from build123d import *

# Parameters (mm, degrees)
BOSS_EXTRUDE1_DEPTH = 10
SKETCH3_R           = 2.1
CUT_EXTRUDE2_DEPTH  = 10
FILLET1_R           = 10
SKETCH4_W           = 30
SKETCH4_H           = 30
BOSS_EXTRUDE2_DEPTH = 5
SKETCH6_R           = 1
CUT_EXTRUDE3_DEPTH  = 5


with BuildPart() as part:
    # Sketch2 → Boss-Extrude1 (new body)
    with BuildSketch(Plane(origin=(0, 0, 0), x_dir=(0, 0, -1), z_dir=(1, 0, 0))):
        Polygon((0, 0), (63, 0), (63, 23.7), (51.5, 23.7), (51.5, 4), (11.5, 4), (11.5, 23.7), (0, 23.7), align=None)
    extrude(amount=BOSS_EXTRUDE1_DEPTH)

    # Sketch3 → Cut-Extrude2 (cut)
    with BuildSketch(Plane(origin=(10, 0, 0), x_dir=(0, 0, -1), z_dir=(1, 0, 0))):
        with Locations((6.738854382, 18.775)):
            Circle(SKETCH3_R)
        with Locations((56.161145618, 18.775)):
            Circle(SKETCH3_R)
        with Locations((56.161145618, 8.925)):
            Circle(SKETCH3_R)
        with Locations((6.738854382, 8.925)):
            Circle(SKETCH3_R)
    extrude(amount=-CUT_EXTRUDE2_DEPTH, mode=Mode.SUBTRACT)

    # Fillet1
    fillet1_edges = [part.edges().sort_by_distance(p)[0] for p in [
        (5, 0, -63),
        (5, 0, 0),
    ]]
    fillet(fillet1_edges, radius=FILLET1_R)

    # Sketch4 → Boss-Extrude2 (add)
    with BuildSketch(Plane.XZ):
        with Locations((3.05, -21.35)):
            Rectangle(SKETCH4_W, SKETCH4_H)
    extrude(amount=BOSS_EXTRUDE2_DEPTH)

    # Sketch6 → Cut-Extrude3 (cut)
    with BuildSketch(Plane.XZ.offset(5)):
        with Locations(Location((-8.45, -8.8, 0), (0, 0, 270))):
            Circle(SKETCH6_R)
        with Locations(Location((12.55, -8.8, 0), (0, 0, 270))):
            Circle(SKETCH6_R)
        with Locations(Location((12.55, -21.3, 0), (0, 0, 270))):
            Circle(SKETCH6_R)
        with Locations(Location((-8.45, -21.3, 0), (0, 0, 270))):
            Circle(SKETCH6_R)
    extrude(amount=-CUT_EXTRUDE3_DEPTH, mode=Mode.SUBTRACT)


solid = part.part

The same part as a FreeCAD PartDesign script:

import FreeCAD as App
import Part
import Sketcher


def edges_at(feature, points):
    """Names of the edges that pass closest to the given points."""
    edges = feature.Shape.Edges
    near = lambda p: min(range(len(edges)), key=lambda i: edges[i].distToShape(Part.Vertex(*p))[0])
    return sorted({f"Edge{near(p) + 1}" for p in points})


def add_polygon(sketch, points):
    """Adds a closed chain of lines whose ends are joined by coincident constraints."""
    first, n = sketch.GeometryCount, len(points)
    for a, b in zip(points, points[1:] + points[:1]):
        sketch.addGeometry(Part.LineSegment(App.Vector(*a, 0), App.Vector(*b, 0)), False)
    for i in range(n):
        sketch.addConstraint(Sketcher.Constraint("Coincident", first + i, 2, first + (i + 1) % n, 1))

doc = App.newDocument("Part")
params = doc.addObject("Spreadsheet::Sheet", "Params")
for row, (alias, value) in enumerate([
    ("sketch1_height", "63 mm"),
    ("sketch1_height2", "40 mm"),
    ("sketch1_width", "23.7 mm"),
    ("sketch1_width2", "19.7 mm"),
    ("pad1_length", "10 mm"),
    ("sketch2_diameter", "4.2 mm"),
    ("pocket1_length", "10 mm"),
    ("fillet_radius", "10 mm"),
    ("sketch3_width", "30 mm"),
    ("pad2_length", "5 mm"),
    ("sketch4_diameter", "2 mm"),
    ("pocket2_length", "5 mm"),
], start=1):
    params.set(f"A{row}", alias)
    params.set(f"B{row}", "=" + value)
    params.setAlias(f"B{row}", alias)

body = doc.addObject("PartDesign::Body", "Body")

sketch1 = body.newObject("Sketcher::SketchObject", "Sketch")
sketch1.AttachmentSupport = (doc.getObject("YZ_Plane"), [""])
sketch1.MapMode = "FlatFace"
add_polygon(sketch1, [(0, 0), (0, -63), (24, -63), (24, -52), (4, -52), (4, -12), (24, -12), (24, 0)])
sketch1.addConstraint([
    Sketcher.Constraint("Vertical", 0),
    Sketcher.Constraint("Horizontal", 1),
    Sketcher.Constraint("Vertical", 2),
    Sketcher.Constraint("Horizontal", 3),
    Sketcher.Constraint("Vertical", 4),
    Sketcher.Constraint("Horizontal", 5),
    Sketcher.Constraint("Vertical", 6),
    Sketcher.Constraint("Horizontal", 7),
    Sketcher.Constraint("Coincident", 7, 2, -1, 1),
    Sketcher.Constraint("Vertical", 2, 2, 5, 2),
    Sketcher.Constraint("Equal", 2, 6),
    Sketcher.Constraint("DistanceY", 0, 2, 0, 1, 63.0),
    Sketcher.Constraint("DistanceY", 4, 1, 4, 2, 40.0),
    Sketcher.Constraint("DistanceX", 1, 1, 1, 2, 23.7),
    Sketcher.Constraint("DistanceX", 3, 2, 3, 1, 19.7),
])
sketch1.setExpression("Constraints[19]", "Params.sketch1_height")
sketch1.setExpression("Constraints[20]", "Params.sketch1_height2")
sketch1.setExpression("Constraints[21]", "Params.sketch1_width")
sketch1.setExpression("Constraints[22]", "Params.sketch1_width2")
pad1 = body.newObject("PartDesign::Pad", "Pad")
pad1.Profile = sketch1
pad1.setExpression("Length", "Params.pad1_length")

sketch2 = body.newObject("Sketcher::SketchObject", "Sketch001")
sketch2.AttachmentSupport = (doc.getObject("YZ_Plane"), [""])
sketch2.MapMode = "FlatFace"
sketch2.AttachmentOffset = App.Placement(App.Vector(0, 0, 10), App.Rotation())
sketch2.addGeometry([
    Part.Circle(App.Vector(18.8, -6.7, 0), App.Vector(0, 0, 1), 2.1),
    Part.Circle(App.Vector(18.8, -56.2, 0), App.Vector(0, 0, 1), 2.1),
    Part.Circle(App.Vector(8.9, -56.2, 0), App.Vector(0, 0, 1), 2.1),
    Part.Circle(App.Vector(8.9, -6.7, 0), App.Vector(0, 0, 1), 2.1),
], False)
sketch2.addConstraint([
    Sketcher.Constraint("Equal", 0, 1),
    Sketcher.Constraint("Equal", 1, 2),
    Sketcher.Constraint("Equal", 2, 3),
    Sketcher.Constraint("Horizontal", 1, 3, 2, 3),
    Sketcher.Constraint("Horizontal", 0, 3, 3, 3),
    Sketcher.Constraint("Vertical", 0, 3, 1, 3),
    Sketcher.Constraint("Vertical", 2, 3, 3, 3),
    Sketcher.Constraint("Diameter", 0, 4.2),
    Sketcher.Constraint("DistanceX", 2, 3, 1, 3, 9.85),
    Sketcher.Constraint("DistanceX", -1, 1, 0, 3, 18.775),
    Sketcher.Constraint("DistanceY", 1, 3, 0, 3, 49.422291),
    Sketcher.Constraint("DistanceY", 0, 3, -1, 1, 6.738854),
])
sketch2.setExpression("Constraints[7]", "Params.sketch2_diameter")
pocket1 = body.newObject("PartDesign::Pocket", "Pocket")
pocket1.Profile = sketch2
pocket1.setExpression("Length", "Params.pocket1_length")
doc.recompute()

fillet = body.newObject("PartDesign::Fillet", "Fillet")
fillet.Base = (pocket1, edges_at(pocket1, [(5, 0, -63), (5, 0, 0)]))
fillet.setExpression("Radius", "Params.fillet_radius")

sketch3 = body.newObject("Sketcher::SketchObject", "Sketch002")
sketch3.AttachmentSupport = (doc.getObject("XZ_Plane"), [""])
sketch3.MapMode = "FlatFace"
add_polygon(sketch3, [(-12, -6), (-12, -36), (18, -36), (18, -6)])
sketch3.addConstraint([
    Sketcher.Constraint("Vertical", 0),
    Sketcher.Constraint("Horizontal", 1),
    Sketcher.Constraint("Vertical", 2),
    Sketcher.Constraint("Horizontal", 3),
    Sketcher.Constraint("Equal", 3, 0),
    Sketcher.Constraint("DistanceX", 1, 1, 1, 2, 30.0),
    Sketcher.Constraint("DistanceX", 0, 2, -1, 1, 11.95),
    Sketcher.Constraint("DistanceY", 0, 2, -1, 1, 36.35),
])
sketch3.setExpression("Constraints[9]", "Params.sketch3_width")
pad2 = body.newObject("PartDesign::Pad", "Pad001")
pad2.Profile = sketch3
pad2.setExpression("Length", "Params.pad2_length")

sketch4 = body.newObject("Sketcher::SketchObject", "Sketch003")
sketch4.AttachmentSupport = (doc.getObject("XZ_Plane"), [""])
sketch4.MapMode = "FlatFace"
sketch4.AttachmentOffset = App.Placement(App.Vector(0, 0, 5), App.Rotation())
sketch4.addGeometry([
    Part.Circle(App.Vector(-8.4, -8.8, 0), App.Vector(0, 0, 1), 1),
    Part.Circle(App.Vector(12.6, -8.8, 0), App.Vector(0, 0, 1), 1),
    Part.Circle(App.Vector(12.6, -21.3, 0), App.Vector(0, 0, 1), 1),
    Part.Circle(App.Vector(-8.4, -21.3, 0), App.Vector(0, 0, 1), 1),
], False)
sketch4.addConstraint([
    Sketcher.Constraint("Equal", 0, 1),
    Sketcher.Constraint("Equal", 1, 2),
    Sketcher.Constraint("Equal", 2, 3),
    Sketcher.Constraint("Horizontal", 0, 3, 1, 3),
    Sketcher.Constraint("Horizontal", 2, 3, 3, 3),
    Sketcher.Constraint("Vertical", 1, 3, 2, 3),
    Sketcher.Constraint("Vertical", 0, 3, 3, 3),
    Sketcher.Constraint("Diameter", 0, 2.0),
    Sketcher.Constraint("DistanceX", 0, 3, 1, 3, 21.0),
    Sketcher.Constraint("DistanceY", 0, 3, -1, 1, 8.8),
    Sketcher.Constraint("DistanceY", 2, 3, -1, 1, 21.3),
    Sketcher.Constraint("DistanceX", 0, 3, -1, 1, 8.45),
])
sketch4.setExpression("Constraints[7]", "Params.sketch4_diameter")
pocket2 = body.newObject("PartDesign::Pocket", "Pocket001")
pocket2.Profile = sketch4
pocket2.setExpression("Length", "Params.pocket2_length")

doc.recompute()
